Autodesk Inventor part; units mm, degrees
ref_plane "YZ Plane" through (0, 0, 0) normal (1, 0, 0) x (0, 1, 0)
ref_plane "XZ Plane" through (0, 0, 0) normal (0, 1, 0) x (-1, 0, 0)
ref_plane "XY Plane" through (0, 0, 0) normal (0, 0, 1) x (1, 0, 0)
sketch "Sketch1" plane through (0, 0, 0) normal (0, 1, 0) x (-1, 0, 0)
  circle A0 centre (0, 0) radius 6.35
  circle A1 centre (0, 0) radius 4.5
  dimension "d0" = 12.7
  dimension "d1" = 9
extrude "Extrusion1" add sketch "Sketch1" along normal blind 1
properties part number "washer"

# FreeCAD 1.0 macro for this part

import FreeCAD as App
import Part
import Sketcher
Q = App.Units.Quantity

doc = App.newDocument("Part")
body = doc.addObject("PartDesign::Body", "Body")

# Sketch on XZ plane
sketch1 = doc.addObject("Sketcher::SketchObject", "Sketch")
body.addObject(sketch1)
sketch1.AttachmentSupport = (doc.XZ_Plane, [""])
sketch1.MapMode = "FlatFace"
sketch1.addGeometry(Part.Circle(App.Vector(0, 0, 0), App.Vector(0, 0, 1), 6.3), False)
sketch1.addGeometry(Part.Circle(App.Vector(0, 0, 0), App.Vector(0, 0, 1), 4.5), False)
sketch1.addConstraint(Sketcher.Constraint("Coincident", 0, 3, -1, 1))
sketch1.addConstraint(Sketcher.Constraint("Coincident", 1, 3, -1, 1))
sketch1.addConstraint(Sketcher.Constraint("Diameter", 1, Q("9 mm")))
sketch1.addConstraint(Sketcher.Constraint("Diameter", 0, Q("12.7 mm")))
pad1 = doc.addObject("PartDesign::Pad", "Pad")
body.addObject(pad1)
pad1.Profile = sketch1
pad1.Length = 1
pad1.Reversed = True

doc.recompute()
